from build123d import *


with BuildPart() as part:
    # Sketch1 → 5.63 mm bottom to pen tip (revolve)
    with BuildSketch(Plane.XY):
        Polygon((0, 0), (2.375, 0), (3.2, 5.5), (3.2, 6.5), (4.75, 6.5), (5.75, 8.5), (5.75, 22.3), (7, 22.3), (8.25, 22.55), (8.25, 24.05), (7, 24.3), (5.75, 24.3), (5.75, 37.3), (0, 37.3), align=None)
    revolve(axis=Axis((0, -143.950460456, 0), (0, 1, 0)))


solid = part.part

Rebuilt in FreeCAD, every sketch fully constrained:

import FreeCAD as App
import Part
import Sketcher
Q = App.Units.Quantity

doc = App.newDocument("Part")
body = doc.addObject("PartDesign::Body", "Body")

# Sketch on XY plane
sketch1 = body.newObject("Sketcher::SketchObject", "Sketch")
sketch1.AttachmentSupport = (doc.getObject("XY_Plane"), [""])
sketch1.MapMode = "FlatFace"
sketch1.addGeometry([
    Part.LineSegment(App.Vector(0, 0, 0), App.Vector(2.375, 0, 0)),  # 0
    Part.LineSegment(App.Vector(2.375, 0, 0), App.Vector(3.2, 5.5, 0)),  # 1
    Part.LineSegment(App.Vector(3.2, 5.5, 0), App.Vector(3.2, 6.5, 0)),  # 2
    Part.LineSegment(App.Vector(3.2, 6.5, 0), App.Vector(4.75, 6.5, 0)),  # 3
    Part.LineSegment(App.Vector(4.75, 6.5, 0), App.Vector(5.75, 8.5, 0)),  # 4
    Part.LineSegment(App.Vector(5.75, 8.5, 0), App.Vector(5.75, 22.3, 0)),  # 5
    Part.LineSegment(App.Vector(5.75, 22.3, 0), App.Vector(7, 22.3, 0)),  # 6
    Part.LineSegment(App.Vector(7, 22.3, 0), App.Vector(8.25, 22.55, 0)),  # 7
    Part.LineSegment(App.Vector(8.25, 22.55, 0), App.Vector(8.25, 24.05, 0)),  # 8
    Part.LineSegment(App.Vector(8.25, 24.05, 0), App.Vector(7, 24.3, 0)),  # 9
    Part.LineSegment(App.Vector(7, 24.3, 0), App.Vector(5.75, 24.3, 0)),  # 10
    Part.LineSegment(App.Vector(5.75, 24.3, 0), App.Vector(5.75, 37.3, 0)),  # 11
    Part.LineSegment(App.Vector(5.75, 37.3, 0), App.Vector(0, 37.3, 0)),  # 12
    Part.LineSegment(App.Vector(0, 37.3, 0), App.Vector(0, 0, 0)),  # 13
], False)
sketch1.addConstraint([
    Sketcher.Constraint("Coincident", 0, 2, 1, 1),
    Sketcher.Constraint("Coincident", 1, 2, 2, 1),
    Sketcher.Constraint("Coincident", 2, 2, 3, 1),
    Sketcher.Constraint("Coincident", 3, 2, 4, 1),
    Sketcher.Constraint("Coincident", 4, 2, 5, 1),
    Sketcher.Constraint("Coincident", 5, 2, 6, 1),
    Sketcher.Constraint("Coincident", 6, 2, 7, 1),
    Sketcher.Constraint("Coincident", 7, 2, 8, 1),
    Sketcher.Constraint("Coincident", 8, 2, 9, 1),
    Sketcher.Constraint("Coincident", 9, 2, 10, 1),
    Sketcher.Constraint("Coincident", 10, 2, 11, 1),
    Sketcher.Constraint("Coincident", 11, 2, 12, 1),
    Sketcher.Constraint("Coincident", 12, 2, 13, 1),
    Sketcher.Constraint("Coincident", 13, 2, 0, 1),
    Sketcher.Constraint("Horizontal", 0),
    Sketcher.Constraint("Vertical", 2),
    Sketcher.Constraint("Horizontal", 3),
    Sketcher.Constraint("Vertical", 5),
    Sketcher.Constraint("Horizontal", 6),
    Sketcher.Constraint("Vertical", 8),
    Sketcher.Constraint("Horizontal", 10),
    Sketcher.Constraint("Vertical", 11),
    Sketcher.Constraint("Horizontal", 12),
    Sketcher.Constraint("Vertical", 13),
    Sketcher.Constraint("Coincident", 13, 2, -1, 1),
    Sketcher.Constraint("Vertical", 6, 2, 9, 2),
    Sketcher.Constraint("Vertical", 5, 2, 10, 2),
    Sketcher.Constraint("Equal", 7, 9),
    Sketcher.Constraint("DistanceY", 2, 1, 2, 2, Q("1 mm")),
    Sketcher.Constraint("DistanceY", 11, 1, 11, 2, Q("13 mm")),
    Sketcher.Constraint("DistanceY", 5, 1, 5, 2, Q("13.8 mm")),
    Sketcher.Constraint("DistanceY", 8, 1, 8, 2, Q("1.5 mm")),
    Sketcher.Constraint("DistanceY", 13, 2, 13, 1, Q("37.3 mm")),
    Sketcher.Constraint("DistanceX", -1, 1, 6, 2, Q("7 mm")),
    Sketcher.Constraint("DistanceX", 3, 2, 4, 2, Q("1 mm")),
    Sketcher.Constraint("DistanceY", 3, 2, 4, 2, Q("2 mm")),
    Sketcher.Constraint("DistanceY", 6, 2, 9, 2, Q("2 mm")),
    Sketcher.Constraint("DistanceX", 3, 1, 3, 2, Q("1.55 mm")),
    Sketcher.Constraint("DistanceX", 6, 1, 6, 2, Q("1.25 mm")),
    Sketcher.Constraint("DistanceX", 5, 2, 7, 2, Q("2.5 mm")),
    Sketcher.Constraint("DistanceX", 0, 1, 0, 2, Q("2.375 mm")),
])
revolution = body.newObject("PartDesign::Revolution", "Revolution")
revolution.Profile = sketch1
revolution.ReferenceAxis = (sketch1, ["V_Axis"])
revolution.Angle = 360

doc.recompute()
